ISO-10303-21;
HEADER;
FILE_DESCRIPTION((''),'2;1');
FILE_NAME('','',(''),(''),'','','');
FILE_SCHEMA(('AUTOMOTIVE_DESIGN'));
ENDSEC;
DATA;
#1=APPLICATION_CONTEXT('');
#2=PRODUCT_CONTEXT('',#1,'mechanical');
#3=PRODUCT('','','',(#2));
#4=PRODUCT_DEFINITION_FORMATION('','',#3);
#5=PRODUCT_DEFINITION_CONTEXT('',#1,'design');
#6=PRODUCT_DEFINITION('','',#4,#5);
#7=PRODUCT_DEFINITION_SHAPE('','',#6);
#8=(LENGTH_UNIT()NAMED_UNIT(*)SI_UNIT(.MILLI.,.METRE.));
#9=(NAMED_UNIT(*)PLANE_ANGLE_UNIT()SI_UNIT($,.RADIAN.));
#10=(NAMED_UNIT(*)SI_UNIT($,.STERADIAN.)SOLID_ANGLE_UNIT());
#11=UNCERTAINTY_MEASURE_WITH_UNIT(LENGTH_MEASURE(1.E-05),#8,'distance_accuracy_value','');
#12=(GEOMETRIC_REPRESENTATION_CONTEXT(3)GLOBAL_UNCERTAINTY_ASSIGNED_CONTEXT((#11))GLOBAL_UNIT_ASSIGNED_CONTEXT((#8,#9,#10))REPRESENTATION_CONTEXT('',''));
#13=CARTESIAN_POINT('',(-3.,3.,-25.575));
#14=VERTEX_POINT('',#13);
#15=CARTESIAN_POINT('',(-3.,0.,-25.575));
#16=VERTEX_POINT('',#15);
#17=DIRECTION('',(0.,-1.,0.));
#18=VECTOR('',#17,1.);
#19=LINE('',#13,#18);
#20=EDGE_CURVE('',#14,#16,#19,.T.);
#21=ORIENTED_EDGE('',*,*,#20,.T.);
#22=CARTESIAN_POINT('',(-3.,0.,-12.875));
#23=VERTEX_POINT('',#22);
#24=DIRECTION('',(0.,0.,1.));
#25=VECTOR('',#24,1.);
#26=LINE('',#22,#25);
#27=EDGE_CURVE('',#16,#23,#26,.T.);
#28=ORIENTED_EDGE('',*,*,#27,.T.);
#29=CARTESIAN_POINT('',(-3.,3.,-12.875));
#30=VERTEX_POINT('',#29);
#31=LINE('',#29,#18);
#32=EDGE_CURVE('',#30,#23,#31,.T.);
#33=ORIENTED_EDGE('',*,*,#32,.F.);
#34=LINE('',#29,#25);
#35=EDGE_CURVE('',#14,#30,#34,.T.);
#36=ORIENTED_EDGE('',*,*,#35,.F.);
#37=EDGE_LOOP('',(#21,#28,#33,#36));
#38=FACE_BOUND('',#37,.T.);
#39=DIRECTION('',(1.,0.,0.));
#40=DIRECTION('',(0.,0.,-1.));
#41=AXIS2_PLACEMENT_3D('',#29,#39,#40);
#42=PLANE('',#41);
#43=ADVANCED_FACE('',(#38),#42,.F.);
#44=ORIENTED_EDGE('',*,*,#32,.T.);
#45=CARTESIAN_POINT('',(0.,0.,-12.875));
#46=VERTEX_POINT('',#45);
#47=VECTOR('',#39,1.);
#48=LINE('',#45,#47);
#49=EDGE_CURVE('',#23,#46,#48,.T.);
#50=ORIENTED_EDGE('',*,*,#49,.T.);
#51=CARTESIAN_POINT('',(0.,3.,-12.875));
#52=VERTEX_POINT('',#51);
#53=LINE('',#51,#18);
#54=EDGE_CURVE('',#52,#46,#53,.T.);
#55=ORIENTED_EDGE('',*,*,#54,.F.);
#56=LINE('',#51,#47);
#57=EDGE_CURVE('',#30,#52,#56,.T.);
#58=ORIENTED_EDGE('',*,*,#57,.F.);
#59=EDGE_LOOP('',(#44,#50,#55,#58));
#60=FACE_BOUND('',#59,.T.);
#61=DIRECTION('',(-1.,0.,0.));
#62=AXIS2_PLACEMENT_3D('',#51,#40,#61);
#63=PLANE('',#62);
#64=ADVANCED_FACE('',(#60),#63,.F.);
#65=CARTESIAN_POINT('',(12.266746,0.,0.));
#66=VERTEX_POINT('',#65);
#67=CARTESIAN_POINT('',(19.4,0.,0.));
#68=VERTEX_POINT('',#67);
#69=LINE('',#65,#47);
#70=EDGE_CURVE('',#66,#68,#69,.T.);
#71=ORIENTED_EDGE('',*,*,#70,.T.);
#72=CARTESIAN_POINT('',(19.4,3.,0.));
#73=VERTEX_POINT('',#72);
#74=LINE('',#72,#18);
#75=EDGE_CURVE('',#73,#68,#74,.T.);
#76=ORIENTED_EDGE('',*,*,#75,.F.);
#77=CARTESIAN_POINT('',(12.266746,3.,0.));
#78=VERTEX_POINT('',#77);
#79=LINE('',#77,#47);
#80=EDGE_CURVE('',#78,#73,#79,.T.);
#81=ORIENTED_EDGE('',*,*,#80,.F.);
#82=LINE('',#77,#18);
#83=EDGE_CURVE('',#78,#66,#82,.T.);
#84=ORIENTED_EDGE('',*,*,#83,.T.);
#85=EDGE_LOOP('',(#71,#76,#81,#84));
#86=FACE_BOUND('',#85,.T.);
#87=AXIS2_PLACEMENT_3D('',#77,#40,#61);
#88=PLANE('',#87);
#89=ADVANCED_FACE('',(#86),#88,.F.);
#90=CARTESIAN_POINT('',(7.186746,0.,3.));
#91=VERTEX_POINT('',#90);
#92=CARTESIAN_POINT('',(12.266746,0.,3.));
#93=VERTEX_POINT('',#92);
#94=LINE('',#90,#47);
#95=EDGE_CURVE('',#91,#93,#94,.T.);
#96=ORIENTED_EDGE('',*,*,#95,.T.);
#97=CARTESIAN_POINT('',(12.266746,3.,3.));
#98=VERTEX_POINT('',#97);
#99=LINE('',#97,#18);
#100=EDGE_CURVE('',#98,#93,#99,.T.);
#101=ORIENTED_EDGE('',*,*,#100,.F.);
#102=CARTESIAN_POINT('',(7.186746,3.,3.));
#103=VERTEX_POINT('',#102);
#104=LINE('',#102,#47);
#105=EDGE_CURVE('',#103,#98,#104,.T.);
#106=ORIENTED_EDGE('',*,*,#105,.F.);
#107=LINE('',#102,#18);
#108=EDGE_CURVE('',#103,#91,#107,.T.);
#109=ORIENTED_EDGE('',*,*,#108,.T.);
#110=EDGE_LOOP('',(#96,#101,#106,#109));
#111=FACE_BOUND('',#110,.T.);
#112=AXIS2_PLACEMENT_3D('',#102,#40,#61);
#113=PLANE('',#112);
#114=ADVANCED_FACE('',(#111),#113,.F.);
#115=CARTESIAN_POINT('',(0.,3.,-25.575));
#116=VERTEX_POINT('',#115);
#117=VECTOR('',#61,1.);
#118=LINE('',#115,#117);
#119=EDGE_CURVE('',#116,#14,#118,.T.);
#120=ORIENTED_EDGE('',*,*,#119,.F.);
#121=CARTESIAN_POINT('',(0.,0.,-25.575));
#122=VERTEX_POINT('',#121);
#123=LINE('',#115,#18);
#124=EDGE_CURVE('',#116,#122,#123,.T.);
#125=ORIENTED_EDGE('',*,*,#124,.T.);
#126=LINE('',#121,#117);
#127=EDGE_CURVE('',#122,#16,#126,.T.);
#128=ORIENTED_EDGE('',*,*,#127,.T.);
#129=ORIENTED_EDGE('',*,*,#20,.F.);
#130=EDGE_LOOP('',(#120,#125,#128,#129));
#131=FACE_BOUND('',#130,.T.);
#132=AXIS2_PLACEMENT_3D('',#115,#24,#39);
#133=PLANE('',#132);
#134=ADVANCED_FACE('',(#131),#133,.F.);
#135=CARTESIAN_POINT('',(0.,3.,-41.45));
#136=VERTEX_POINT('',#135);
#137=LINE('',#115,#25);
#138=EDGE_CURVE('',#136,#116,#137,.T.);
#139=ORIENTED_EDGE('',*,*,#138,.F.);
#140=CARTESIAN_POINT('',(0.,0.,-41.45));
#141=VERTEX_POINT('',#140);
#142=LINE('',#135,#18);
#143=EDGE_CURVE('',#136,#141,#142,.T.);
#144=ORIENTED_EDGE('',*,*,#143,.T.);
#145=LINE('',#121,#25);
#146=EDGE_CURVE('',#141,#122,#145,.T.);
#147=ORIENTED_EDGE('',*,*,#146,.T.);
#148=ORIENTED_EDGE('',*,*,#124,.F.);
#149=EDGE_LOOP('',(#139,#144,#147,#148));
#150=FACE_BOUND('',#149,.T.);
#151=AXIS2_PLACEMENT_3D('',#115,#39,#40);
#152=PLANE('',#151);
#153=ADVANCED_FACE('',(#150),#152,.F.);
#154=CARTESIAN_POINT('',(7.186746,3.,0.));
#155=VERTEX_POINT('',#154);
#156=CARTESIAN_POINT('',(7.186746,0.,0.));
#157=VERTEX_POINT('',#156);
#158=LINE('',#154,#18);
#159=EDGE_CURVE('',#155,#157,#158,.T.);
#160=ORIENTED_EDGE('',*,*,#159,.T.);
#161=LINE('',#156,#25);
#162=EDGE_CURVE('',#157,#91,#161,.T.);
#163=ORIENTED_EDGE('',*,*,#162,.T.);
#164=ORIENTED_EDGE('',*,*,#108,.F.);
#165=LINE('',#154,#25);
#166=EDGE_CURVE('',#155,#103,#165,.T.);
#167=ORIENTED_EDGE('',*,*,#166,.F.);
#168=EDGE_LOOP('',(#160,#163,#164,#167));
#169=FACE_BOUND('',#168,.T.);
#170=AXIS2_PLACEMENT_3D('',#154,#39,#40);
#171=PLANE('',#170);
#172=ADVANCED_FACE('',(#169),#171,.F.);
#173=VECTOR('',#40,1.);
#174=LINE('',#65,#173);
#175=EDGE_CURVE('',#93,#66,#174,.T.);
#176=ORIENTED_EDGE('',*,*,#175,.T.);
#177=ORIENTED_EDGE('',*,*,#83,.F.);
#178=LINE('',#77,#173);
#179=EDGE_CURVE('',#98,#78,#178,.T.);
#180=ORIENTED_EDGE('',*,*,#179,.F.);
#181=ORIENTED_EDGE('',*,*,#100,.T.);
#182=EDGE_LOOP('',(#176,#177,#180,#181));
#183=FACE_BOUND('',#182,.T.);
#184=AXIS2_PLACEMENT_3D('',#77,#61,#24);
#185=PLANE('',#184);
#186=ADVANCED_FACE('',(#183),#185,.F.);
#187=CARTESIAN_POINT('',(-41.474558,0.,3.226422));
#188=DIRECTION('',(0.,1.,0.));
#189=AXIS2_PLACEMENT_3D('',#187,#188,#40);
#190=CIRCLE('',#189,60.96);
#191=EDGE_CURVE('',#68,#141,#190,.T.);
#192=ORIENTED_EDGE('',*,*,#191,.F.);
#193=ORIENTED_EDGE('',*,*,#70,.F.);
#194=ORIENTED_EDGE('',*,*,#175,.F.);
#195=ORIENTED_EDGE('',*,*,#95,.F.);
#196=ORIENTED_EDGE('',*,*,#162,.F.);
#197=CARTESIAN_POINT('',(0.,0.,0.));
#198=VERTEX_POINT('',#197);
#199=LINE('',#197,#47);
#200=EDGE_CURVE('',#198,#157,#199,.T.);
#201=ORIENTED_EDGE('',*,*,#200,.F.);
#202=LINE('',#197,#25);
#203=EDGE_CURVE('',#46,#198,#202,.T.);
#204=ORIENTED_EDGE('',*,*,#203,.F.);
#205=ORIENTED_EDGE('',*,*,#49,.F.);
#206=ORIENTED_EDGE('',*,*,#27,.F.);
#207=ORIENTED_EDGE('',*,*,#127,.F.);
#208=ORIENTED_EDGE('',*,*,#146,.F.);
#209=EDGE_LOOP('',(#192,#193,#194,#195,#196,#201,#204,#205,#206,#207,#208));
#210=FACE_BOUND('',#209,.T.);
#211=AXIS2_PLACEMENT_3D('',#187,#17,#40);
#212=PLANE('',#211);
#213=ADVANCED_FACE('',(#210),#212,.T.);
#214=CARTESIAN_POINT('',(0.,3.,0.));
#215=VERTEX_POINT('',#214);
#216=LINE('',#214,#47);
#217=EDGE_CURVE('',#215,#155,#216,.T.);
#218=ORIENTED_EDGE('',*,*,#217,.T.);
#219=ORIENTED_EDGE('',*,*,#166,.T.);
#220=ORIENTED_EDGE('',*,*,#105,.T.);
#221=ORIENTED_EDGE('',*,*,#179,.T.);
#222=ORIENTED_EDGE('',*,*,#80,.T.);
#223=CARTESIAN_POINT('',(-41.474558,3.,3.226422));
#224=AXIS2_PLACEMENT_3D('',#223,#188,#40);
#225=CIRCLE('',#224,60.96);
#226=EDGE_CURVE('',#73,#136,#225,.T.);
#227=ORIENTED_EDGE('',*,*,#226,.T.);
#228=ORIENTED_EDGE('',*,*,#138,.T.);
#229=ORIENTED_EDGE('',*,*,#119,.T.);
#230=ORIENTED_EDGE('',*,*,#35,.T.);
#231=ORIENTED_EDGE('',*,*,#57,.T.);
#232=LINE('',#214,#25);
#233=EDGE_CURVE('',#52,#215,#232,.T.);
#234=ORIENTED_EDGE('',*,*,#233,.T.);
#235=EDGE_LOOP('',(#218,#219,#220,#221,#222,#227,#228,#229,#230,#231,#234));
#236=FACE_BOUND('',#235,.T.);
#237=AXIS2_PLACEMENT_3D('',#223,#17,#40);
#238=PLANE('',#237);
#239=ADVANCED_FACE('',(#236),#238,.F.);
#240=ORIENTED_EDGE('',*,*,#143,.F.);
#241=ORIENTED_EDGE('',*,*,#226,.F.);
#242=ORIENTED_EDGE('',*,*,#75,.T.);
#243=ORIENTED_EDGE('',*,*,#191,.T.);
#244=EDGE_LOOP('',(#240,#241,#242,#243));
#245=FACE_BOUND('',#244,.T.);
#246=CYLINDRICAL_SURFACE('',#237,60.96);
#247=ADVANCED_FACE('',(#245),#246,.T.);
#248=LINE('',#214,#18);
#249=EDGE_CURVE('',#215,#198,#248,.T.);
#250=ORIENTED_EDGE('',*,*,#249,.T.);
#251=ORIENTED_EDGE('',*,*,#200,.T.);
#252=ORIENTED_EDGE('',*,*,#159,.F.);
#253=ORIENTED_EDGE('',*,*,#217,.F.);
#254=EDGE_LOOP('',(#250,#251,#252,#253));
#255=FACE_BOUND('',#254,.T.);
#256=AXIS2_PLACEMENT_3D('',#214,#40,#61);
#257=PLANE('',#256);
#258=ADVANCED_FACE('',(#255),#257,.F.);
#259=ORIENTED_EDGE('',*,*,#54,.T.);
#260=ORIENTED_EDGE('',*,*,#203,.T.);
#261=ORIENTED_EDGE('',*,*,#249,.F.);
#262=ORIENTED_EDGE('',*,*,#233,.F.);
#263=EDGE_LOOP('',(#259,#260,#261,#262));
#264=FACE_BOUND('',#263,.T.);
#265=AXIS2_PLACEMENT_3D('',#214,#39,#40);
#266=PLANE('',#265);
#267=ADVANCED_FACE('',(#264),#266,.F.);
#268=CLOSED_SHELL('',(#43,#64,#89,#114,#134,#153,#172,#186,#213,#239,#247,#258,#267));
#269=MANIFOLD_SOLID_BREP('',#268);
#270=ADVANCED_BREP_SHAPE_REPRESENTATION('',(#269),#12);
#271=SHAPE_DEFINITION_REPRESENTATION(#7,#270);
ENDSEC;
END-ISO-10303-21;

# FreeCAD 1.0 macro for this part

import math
import FreeCAD as App
import Part
import Sketcher
from FreeCAD import Vector
Q = App.Units.Quantity

doc = App.newDocument("Part")
body = doc.addObject("PartDesign::Body", "Body")

# Sketch on XZ plane
sketch1 = doc.addObject("Sketcher::SketchObject", "Sketch")
body.addObject(sketch1)
sketch1.AttachmentSupport = (doc.XZ_Plane, [""])
sketch1.MapMode = "FlatFace"
sketch1.addGeometry([
    Part.LineSegment(Vector(0, -12.9, 0), Vector(0, 0, 0)),  # 0
    Part.LineSegment(Vector(0, 0, 0), Vector(7.2, 0, 0)),  # 1
    Part.LineSegment(Vector(7.2, 0, 0), Vector(7.2, 3, 0)),  # 2
    Part.LineSegment(Vector(7.2, 3, 0), Vector(12.3, 3, 0)),  # 3
    Part.LineSegment(Vector(12.3, 3, 0), Vector(12.3, 0, 0)),  # 4
    Part.LineSegment(Vector(12.3, 0, 0), Vector(19.4, 0, 0)),  # 5
    Part.ArcOfCircle(Part.Circle(Vector(-41.5, 3.2, 0), Vector(0, 0, 1), 61), math.radians(-47), math.radians(-3)),  # 6
    Part.LineSegment(Vector(0, -41.5, 0), Vector(0, -25.6, 0)),  # 7
    Part.LineSegment(Vector(0, -25.6, 0), Vector(-3, -25.6, 0)),  # 8
    Part.LineSegment(Vector(-3, -25.6, 0), Vector(-3, -12.9, 0)),  # 9
    Part.LineSegment(Vector(-3, -12.9, 0), Vector(0, -12.9, 0)),  # 10
], False)
sketch1.addConstraint([
    Sketcher.Constraint("Coincident", 0, 2, 1, 1),
    Sketcher.Constraint("Coincident", 1, 2, 2, 1),
    Sketcher.Constraint("Coincident", 2, 2, 3, 1),
    Sketcher.Constraint("Coincident", 3, 2, 4, 1),
    Sketcher.Constraint("Coincident", 4, 2, 5, 1),
    Sketcher.Constraint("Coincident", 5, 2, 6, 2),
    Sketcher.Constraint("Coincident", 6, 1, 7, 1),
    Sketcher.Constraint("Coincident", 7, 2, 8, 1),
    Sketcher.Constraint("Coincident", 8, 2, 9, 1),
    Sketcher.Constraint("Coincident", 9, 2, 10, 1),
    Sketcher.Constraint("Coincident", 10, 2, 0, 1),
    Sketcher.Constraint("Vertical", 0),
    Sketcher.Constraint("Horizontal", 1),
    Sketcher.Constraint("Vertical", 2),
    Sketcher.Constraint("Horizontal", 3),
    Sketcher.Constraint("Vertical", 4),
    Sketcher.Constraint("Horizontal", 5),
    Sketcher.Constraint("Vertical", 7),
    Sketcher.Constraint("Horizontal", 8),
    Sketcher.Constraint("Vertical", 9),
    Sketcher.Constraint("Horizontal", 10),
    Sketcher.Constraint("Coincident", 0, 2, -1, 1),
    Sketcher.Constraint("PointOnObject", 4, 2, -1),
    Sketcher.Constraint("PointOnObject", 6, 1, -2),
    Sketcher.Constraint("Equal", 10, 2),
    Sketcher.Constraint("Radius", 6, Q("2.4 in")),
    Sketcher.Constraint("DistanceX", 3, 1, 3, 2, Q("0.2 in")),
    Sketcher.Constraint("DistanceY", 9, 1, 9, 2, Q("0.5 in")),
    Sketcher.Constraint("DistanceY", 7, 1, 7, 2, Q("0.625 in")),
    Sketcher.Constraint("DistanceY", 6, 1, 2, 2, Q("1.75 in")),
    Sketcher.Constraint("DistanceX", 8, 2, 8, 1, 3.0),
    Sketcher.Constraint("DistanceX", -1, 1, 5, 2, 19.4),
    Sketcher.Constraint("DistanceX", 1, 1, 1, 2, 7.186746),
])
pad1 = doc.addObject("PartDesign::Pad", "Pad")
body.addObject(pad1)
pad1.Profile = sketch1
pad1.Length = 3
pad1.Reversed = True

doc.recompute()
